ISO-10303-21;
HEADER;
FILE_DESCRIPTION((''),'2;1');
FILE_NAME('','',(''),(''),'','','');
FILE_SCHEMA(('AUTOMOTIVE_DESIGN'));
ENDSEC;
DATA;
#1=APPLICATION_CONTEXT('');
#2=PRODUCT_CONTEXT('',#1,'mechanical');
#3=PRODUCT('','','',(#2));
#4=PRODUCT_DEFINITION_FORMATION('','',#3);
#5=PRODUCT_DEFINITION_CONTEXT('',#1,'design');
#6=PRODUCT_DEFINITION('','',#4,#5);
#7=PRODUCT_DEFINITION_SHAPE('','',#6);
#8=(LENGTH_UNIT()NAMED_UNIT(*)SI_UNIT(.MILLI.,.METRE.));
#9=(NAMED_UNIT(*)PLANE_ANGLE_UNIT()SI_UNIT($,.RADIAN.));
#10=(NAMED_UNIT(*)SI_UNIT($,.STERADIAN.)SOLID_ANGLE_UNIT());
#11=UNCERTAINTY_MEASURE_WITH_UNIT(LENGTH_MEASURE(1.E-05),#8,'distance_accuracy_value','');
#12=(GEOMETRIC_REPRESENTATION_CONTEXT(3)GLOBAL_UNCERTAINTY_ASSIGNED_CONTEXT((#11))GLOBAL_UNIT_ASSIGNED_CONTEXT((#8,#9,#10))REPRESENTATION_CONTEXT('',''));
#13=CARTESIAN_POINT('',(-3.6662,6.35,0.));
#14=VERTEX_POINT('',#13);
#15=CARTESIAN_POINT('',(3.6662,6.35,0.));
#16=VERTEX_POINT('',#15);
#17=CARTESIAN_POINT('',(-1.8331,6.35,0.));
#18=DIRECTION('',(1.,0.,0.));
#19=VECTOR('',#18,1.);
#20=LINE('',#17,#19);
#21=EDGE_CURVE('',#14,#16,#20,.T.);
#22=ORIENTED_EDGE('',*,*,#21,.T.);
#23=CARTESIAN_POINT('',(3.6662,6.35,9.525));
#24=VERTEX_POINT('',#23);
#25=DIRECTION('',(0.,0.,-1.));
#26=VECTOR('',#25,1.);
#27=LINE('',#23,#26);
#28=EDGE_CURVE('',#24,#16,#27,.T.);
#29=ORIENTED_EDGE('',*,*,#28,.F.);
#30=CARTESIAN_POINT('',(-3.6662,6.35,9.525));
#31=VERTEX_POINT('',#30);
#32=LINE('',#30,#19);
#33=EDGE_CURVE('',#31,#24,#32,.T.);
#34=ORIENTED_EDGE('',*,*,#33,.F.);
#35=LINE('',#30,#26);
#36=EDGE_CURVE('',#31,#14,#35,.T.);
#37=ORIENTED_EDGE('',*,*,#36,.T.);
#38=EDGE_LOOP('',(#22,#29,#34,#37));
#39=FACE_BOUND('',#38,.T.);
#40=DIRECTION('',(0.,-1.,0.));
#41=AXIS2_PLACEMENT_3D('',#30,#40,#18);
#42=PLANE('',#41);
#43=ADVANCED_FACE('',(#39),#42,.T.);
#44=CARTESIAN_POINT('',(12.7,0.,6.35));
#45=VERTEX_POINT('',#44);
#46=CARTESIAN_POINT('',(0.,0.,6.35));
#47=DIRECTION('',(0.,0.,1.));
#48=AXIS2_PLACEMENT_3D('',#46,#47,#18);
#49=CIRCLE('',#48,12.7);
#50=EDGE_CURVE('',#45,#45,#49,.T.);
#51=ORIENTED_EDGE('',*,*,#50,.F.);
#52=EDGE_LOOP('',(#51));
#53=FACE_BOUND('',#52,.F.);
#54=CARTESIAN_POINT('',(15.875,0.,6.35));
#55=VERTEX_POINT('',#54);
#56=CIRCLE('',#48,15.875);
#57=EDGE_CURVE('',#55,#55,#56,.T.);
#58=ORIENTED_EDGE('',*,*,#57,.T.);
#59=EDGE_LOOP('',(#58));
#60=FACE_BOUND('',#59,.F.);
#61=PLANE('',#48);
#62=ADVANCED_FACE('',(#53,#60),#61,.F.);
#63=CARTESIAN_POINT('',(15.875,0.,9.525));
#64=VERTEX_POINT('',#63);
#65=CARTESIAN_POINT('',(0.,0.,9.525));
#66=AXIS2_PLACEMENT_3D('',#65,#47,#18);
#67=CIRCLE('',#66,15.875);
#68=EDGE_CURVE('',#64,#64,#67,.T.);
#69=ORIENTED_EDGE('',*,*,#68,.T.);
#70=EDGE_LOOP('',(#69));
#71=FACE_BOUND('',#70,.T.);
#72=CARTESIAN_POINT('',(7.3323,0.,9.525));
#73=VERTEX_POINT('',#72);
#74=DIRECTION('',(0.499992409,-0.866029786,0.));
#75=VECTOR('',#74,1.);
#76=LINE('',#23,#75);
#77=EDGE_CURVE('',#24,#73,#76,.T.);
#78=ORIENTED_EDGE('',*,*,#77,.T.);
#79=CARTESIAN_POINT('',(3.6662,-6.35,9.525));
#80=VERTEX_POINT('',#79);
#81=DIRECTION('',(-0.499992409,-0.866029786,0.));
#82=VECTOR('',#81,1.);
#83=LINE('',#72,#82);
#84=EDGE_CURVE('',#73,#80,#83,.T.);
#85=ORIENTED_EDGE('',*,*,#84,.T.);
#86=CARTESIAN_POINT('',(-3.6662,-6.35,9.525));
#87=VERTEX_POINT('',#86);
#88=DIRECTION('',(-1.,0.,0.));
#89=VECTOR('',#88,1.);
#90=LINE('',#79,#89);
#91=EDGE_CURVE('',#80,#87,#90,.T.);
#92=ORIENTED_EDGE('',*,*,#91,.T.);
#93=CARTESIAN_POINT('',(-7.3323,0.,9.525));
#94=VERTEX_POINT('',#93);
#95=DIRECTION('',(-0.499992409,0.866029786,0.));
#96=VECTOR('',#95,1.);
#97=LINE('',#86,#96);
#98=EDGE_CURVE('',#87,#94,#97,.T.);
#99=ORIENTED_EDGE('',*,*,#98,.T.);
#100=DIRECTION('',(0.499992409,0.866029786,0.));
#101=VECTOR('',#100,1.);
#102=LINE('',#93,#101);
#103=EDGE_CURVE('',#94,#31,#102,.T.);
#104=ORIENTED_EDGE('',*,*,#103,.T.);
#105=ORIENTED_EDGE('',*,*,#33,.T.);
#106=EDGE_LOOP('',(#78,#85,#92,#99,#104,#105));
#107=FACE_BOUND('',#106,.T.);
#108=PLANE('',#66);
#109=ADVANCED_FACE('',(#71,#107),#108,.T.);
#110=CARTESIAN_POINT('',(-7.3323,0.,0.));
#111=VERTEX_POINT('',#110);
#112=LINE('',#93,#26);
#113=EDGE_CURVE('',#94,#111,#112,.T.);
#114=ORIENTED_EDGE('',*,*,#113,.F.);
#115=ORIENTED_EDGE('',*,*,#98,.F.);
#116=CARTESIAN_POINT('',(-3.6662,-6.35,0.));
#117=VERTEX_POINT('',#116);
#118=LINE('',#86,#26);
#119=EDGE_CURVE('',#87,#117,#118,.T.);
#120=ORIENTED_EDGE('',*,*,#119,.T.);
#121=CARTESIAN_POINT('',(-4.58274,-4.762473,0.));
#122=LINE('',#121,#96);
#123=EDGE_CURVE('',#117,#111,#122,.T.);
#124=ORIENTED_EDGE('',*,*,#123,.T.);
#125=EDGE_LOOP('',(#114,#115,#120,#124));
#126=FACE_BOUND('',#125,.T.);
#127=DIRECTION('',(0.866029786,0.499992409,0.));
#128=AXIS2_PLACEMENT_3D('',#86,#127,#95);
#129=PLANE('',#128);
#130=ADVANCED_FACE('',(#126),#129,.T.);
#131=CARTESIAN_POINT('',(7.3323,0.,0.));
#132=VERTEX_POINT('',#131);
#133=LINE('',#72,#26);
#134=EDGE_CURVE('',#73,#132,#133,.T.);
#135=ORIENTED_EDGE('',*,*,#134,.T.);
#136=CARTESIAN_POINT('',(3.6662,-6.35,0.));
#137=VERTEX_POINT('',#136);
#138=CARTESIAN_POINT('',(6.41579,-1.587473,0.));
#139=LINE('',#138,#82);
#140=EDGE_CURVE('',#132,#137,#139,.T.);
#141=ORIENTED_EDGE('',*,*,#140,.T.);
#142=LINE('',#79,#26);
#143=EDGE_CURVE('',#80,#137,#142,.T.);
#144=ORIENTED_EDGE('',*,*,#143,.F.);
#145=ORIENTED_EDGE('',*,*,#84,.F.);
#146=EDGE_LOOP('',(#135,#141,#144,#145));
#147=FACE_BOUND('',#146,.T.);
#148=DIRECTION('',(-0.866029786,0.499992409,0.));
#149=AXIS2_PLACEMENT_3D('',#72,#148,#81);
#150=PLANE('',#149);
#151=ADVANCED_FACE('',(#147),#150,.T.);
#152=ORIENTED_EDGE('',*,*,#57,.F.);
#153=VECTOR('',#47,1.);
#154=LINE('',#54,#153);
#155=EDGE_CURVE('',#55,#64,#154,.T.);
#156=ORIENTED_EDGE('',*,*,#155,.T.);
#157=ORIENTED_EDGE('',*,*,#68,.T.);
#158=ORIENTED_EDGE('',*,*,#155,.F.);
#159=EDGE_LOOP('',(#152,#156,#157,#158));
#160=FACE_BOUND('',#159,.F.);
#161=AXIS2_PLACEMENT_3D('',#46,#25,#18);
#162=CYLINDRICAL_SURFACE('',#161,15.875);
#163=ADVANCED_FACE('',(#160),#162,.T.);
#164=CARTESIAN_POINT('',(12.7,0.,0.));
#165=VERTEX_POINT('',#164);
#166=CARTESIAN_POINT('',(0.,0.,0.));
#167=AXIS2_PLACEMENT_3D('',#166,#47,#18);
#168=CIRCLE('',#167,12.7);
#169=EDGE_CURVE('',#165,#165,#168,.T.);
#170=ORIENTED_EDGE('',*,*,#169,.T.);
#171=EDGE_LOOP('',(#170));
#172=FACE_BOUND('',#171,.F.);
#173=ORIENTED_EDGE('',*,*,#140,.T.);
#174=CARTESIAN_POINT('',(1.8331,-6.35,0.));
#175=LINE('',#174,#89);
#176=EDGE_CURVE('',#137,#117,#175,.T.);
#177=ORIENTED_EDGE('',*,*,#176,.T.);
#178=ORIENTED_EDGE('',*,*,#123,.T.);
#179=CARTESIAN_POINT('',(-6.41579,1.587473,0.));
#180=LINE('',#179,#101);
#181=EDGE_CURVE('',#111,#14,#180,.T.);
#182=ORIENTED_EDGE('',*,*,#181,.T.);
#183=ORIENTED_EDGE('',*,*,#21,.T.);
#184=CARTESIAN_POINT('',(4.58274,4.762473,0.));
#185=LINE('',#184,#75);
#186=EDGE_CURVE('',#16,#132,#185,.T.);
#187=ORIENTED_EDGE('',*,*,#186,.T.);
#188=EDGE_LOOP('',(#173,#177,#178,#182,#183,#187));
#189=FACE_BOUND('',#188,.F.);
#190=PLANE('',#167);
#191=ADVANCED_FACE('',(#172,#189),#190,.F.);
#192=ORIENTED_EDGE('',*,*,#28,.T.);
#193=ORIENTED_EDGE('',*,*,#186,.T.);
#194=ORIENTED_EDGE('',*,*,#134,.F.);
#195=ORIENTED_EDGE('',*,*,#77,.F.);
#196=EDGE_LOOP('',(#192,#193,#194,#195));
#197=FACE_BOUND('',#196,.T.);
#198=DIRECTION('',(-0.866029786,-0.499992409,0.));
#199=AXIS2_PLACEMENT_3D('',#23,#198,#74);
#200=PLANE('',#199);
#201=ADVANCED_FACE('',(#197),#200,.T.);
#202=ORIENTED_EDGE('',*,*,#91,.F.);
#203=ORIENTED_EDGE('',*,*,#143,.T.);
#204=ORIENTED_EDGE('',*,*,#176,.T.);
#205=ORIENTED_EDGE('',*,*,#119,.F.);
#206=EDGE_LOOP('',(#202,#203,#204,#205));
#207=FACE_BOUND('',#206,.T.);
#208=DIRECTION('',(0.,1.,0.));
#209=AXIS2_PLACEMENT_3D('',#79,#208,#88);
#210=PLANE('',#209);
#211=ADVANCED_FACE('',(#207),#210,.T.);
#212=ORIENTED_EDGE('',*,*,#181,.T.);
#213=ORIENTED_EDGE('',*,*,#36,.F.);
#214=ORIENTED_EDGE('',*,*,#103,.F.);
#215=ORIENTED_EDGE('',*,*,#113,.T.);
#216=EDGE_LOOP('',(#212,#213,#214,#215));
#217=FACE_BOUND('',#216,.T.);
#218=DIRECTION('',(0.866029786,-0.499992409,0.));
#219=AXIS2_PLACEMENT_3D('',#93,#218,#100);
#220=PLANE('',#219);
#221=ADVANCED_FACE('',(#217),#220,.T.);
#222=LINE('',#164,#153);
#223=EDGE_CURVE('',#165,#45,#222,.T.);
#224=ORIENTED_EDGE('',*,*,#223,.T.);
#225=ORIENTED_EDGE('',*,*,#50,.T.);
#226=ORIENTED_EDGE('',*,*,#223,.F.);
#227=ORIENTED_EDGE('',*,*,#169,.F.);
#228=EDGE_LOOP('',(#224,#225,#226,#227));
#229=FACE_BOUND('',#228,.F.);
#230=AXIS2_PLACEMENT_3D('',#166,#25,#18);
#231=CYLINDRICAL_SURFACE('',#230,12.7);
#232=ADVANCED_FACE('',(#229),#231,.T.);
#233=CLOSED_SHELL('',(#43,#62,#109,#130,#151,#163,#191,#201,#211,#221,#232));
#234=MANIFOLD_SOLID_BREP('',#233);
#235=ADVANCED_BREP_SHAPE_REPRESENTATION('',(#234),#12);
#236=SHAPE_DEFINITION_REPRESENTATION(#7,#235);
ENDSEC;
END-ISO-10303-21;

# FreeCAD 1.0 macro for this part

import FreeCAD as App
import Part
import Sketcher
Q = App.Units.Quantity

doc = App.newDocument("Part")
body = doc.addObject("PartDesign::Body", "Body")
body.AllowCompound = True

sketch1 = body.newObject("Sketcher::SketchObject", "Sketch")
sketch1.AttachmentSupport = (doc.getObject("XY_Plane"), [""])
sketch1.MapMode = "FlatFace"
sketch1.addGeometry(Part.Circle(App.Vector(0, 0, 0), App.Vector(0, 0, 1), 12.7), False)
sketch1.addConstraint([
    Sketcher.Constraint("Coincident", 0, 3, -1, 1),
    Sketcher.Constraint("Diameter", 0, Q("1 in")),
])
pad1 = body.newObject("PartDesign::Pad", "Pad")
pad1.Profile = sketch1
pad1.Length = Q("0.25 in")

sketch2 = body.newObject("Sketcher::SketchObject", "Sketch001")
sketch2.AttachmentSupport = (doc.getObject("XY_Plane"), [""])
sketch2.MapMode = "FlatFace"
sketch2.AttachmentOffset = App.Placement(App.Vector(0, 0, 0.25 * 25.4), App.Rotation())
sketch2.addGeometry([
    Part.Circle(App.Vector(0, 0, 0), App.Vector(0, 0, 1), 15.875),
    Part.Circle(App.Vector(0, 0, 0), App.Vector(0, 0, 1), 12.7),
], False)
sketch2.addConstraint([
    Sketcher.Constraint("Coincident", 0, 3, -1, 1),
    Sketcher.Constraint("Coincident", 1, 3, -1, 1),
    Sketcher.Constraint("Diameter", 0, Q("1.25 in")),
    Sketcher.Constraint("Diameter", 1, Q("1 in")),
])
pad2 = body.newObject("PartDesign::Pad", "Pad001")
pad2.Profile = sketch2
pad2.Length = Q("0.125 in")

sketch3 = body.newObject("Sketcher::SketchObject", "Sketch002")
sketch3.AttachmentSupport = (doc.getObject("XY_Plane"), [""])
sketch3.MapMode = "FlatFace"
sketch3.AttachmentOffset = App.Placement(App.Vector(0, 0, 0.25 * 25.4), App.Rotation())
sketch3.addGeometry(Part.Circle(App.Vector(0, 0, 0), App.Vector(0, 0, 1), 12.7), False)
sketch3.addConstraint([
    Sketcher.Constraint("Coincident", 0, 3, -1, 1),
    Sketcher.Constraint("Diameter", 0, Q("1 in")),
])
pad3 = body.newObject("PartDesign::Pad", "Pad002")
pad3.Profile = sketch3
pad3.Length = Q("0.125 in")

sketch4 = body.newObject("Sketcher::SketchObject", "Sketch003")
sketch4.AttachmentSupport = (doc.getObject("XY_Plane"), [""])
sketch4.MapMode = "FlatFace"
sketch4.AttachmentOffset = App.Placement(App.Vector(0, 0, 0.375 * 25.4), App.Rotation())
sketch4.addGeometry([
    Part.LineSegment(App.Vector(3.6662, -6.35, 0), App.Vector(7.3323, 0, 0)),
    Part.LineSegment(App.Vector(7.3323, 0, 0), App.Vector(3.6662, 6.35, 0)),
    Part.LineSegment(App.Vector(3.6662, 6.35, 0), App.Vector(-3.6662, 6.35, 0)),
    Part.LineSegment(App.Vector(-3.6662, 6.35, 0), App.Vector(-7.3323, 0, 0)),
    Part.LineSegment(App.Vector(-7.3323, 0, 0), App.Vector(-3.6662, -6.35, 0)),
    Part.LineSegment(App.Vector(-3.6662, -6.35, 0), App.Vector(3.6662, -6.35, 0)),
], False)
sketch4.addConstraint([
    Sketcher.Constraint("Coincident", 0, 2, 1, 1),
    Sketcher.Constraint("Coincident", 1, 2, 2, 1),
    Sketcher.Constraint("Coincident", 2, 2, 3, 1),
    Sketcher.Constraint("Coincident", 3, 2, 4, 1),
    Sketcher.Constraint("Coincident", 4, 2, 5, 1),
    Sketcher.Constraint("Coincident", 5, 2, 0, 1),
    Sketcher.Constraint("Horizontal", 2),
    Sketcher.Constraint("Horizontal", 5),
    Sketcher.Constraint("Symmetric", 0, 2, 3, 2, -1, 1),
    Sketcher.Constraint("Symmetric", 1, 2, 4, 2, -1, 1),
    Sketcher.Constraint("PointOnObject", 0, 2, -1),
    Sketcher.Constraint("Parallel", 0, 3),
    Sketcher.Constraint("Vertical", 2, 2, 4, 2),
    Sketcher.Constraint("DistanceY", 4, 2, 2, 2, Q("0.5 in")),
    Sketcher.Constraint("Angle", 0, Q("60.0005 deg")),
    Sketcher.Constraint("DistanceX", 2, 2, 0, 2, Q("0.433 in")),
])
pocket1 = body.newObject("PartDesign::Pocket", "Pocket")
pocket1.Profile = sketch4
pocket1.Type = "ThroughAll"

doc.recompute()
